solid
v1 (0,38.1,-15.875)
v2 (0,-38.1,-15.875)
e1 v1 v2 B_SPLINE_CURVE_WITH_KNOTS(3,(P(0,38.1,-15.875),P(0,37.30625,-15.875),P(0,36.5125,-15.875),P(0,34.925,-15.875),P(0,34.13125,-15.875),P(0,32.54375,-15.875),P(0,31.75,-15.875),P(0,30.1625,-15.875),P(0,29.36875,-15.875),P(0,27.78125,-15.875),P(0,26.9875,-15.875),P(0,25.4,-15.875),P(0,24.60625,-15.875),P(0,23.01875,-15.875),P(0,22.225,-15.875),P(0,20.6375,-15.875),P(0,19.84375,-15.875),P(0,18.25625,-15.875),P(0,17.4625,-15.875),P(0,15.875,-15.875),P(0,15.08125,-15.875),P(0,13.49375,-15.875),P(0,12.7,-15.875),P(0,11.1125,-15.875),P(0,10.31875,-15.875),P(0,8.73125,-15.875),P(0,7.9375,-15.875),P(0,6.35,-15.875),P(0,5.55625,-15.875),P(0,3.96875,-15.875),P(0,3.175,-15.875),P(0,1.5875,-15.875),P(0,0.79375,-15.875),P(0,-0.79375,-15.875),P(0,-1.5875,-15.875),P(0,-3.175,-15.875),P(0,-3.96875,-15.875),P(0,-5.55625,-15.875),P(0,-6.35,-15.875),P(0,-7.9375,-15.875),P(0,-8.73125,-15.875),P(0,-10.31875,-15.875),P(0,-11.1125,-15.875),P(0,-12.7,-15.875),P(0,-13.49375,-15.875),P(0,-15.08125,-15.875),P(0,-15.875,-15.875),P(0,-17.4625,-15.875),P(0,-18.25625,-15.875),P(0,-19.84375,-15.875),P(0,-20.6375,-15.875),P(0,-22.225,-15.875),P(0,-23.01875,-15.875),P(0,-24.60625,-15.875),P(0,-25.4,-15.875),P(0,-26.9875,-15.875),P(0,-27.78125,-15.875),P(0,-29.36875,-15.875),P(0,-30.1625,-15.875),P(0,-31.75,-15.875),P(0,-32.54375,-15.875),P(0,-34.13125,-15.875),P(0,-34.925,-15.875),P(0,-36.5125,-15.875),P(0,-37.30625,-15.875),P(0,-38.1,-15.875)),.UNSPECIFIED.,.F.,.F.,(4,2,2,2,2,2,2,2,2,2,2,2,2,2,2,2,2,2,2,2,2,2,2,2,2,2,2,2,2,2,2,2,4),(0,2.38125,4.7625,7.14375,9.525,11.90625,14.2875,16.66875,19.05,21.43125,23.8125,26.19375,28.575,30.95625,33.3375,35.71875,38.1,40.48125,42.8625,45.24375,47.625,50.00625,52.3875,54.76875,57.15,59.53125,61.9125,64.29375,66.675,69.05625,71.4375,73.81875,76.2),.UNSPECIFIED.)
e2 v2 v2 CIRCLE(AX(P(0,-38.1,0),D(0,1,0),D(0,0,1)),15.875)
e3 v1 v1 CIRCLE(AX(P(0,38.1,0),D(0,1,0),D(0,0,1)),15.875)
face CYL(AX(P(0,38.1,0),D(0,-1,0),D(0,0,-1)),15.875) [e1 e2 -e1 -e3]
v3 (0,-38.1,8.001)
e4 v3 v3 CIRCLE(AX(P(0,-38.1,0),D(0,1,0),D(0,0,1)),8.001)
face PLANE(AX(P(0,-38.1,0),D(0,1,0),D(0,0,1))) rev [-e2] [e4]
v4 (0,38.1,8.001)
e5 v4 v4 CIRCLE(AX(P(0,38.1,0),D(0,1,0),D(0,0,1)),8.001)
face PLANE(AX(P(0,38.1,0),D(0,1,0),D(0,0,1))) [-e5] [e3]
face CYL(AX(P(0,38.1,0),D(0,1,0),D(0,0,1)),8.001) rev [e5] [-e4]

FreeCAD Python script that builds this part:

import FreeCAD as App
import Part
import Sketcher

V = App.Vector
Q = App.Units.Quantity

doc = App.newDocument("Part")
params = doc.addObject("Spreadsheet::Sheet", "Params")
for row, (alias, value) in enumerate([
    ("sketch1_diameter", "1.25 in"),
    ("pad1_length", "3 in"),
    ("sketch2_diameter", "0.63 in"),
    ("hole_diameter", "0.63 in"),
], start=1):
    params.set(f"A{row}", alias)
    params.set(f"B{row}", "=" + value)
    params.setAlias(f"B{row}", alias)

body = doc.addObject("PartDesign::Body", "Body")

sketch1 = doc.addObject("Sketcher::SketchObject", "Sketch")
body.addObject(sketch1)
sketch1.AttachmentSupport = (doc.XZ_Plane, [""])
sketch1.MapMode = "FlatFace"
sketch1.addGeometry(Part.Circle(V(0, 0, 0), V(0, 0, 1), 16), False)
sketch1.addConstraint(Sketcher.Constraint("Coincident", 0, 3, -1, 1))
sketch1.addConstraint(Sketcher.Constraint("Diameter", 0, Q("1.25 in")))
sketch1.setExpression("Constraints[1]", "Params.sketch1_diameter")
pad1 = doc.addObject("PartDesign::Pad", "Pad")
body.addObject(pad1)
pad1.Profile = sketch1
pad1.setExpression("Length", "Params.pad1_length")
pad1.Midplane = True

sketch2 = doc.addObject("Sketcher::SketchObject", "Sketch001")
body.addObject(sketch2)
sketch2.AttachmentSupport = (doc.XZ_Plane, [""])
sketch2.MapMode = "FlatFace"
sketch2.AttachmentOffset = App.Placement(V(0, 0, -1.5 * 25.4), App.Rotation())
sketch2.addGeometry(Part.Circle(V(0, 0, 0), V(0, 0, 1), 8), False)
sketch2.addConstraint(Sketcher.Constraint("Coincident", 0, 3, -1, 1))
sketch2.addConstraint(Sketcher.Constraint("Diameter", 0, Q("0.63 in")))
sketch2.setExpression("Constraints[1]", "Params.sketch2_diameter")
doc.recompute()
hole = doc.addObject("PartDesign::Hole", "Hole")
body.addObject(hole)
hole.Profile = sketch2
hole.ThreadType = "None"
hole.setExpression("Diameter", "Params.hole_diameter")
hole.DepthType = "ThroughAll"
hole.Reversed = True

doc.recompute()
